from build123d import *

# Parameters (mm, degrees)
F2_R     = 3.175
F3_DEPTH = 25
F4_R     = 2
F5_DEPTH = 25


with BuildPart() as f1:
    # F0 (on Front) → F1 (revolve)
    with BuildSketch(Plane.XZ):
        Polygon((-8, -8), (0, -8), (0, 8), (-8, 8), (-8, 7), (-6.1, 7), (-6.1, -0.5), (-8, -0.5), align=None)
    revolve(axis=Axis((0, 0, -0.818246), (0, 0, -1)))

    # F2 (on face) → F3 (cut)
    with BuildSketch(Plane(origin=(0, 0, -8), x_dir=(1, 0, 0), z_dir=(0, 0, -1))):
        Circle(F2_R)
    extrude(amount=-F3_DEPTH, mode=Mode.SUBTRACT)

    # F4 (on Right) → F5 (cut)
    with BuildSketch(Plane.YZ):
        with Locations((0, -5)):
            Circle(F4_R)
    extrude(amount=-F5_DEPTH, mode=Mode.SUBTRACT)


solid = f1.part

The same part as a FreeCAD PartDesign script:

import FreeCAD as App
import Part
import Sketcher

V = App.Vector
Q = App.Units.Quantity

doc = App.newDocument("Part")
params = doc.addObject("Spreadsheet::Sheet", "Params")
for row, (alias, value) in enumerate([
    ("sketch1_width", "8 mm"),
    ("sketch1_height", "16 mm"),
    ("sketch1_height2", "1 mm"),
    ("sketch1_width2", "1.9 mm"),
    ("revolution_angle", "360 deg"),
    ("sketch2_diameter", "6.35 mm"),
    ("pocket1_length", "25 mm"),
    ("sketch3_diameter", "4 mm"),
    ("pocket2_length", "25 mm"),
], start=1):
    params.set(f"A{row}", alias)
    params.set(f"B{row}", "=" + value)
    params.setAlias(f"B{row}", alias)

body = doc.addObject("PartDesign::Body", "Body")

# Sketch on XZ plane
sketch1 = doc.addObject("Sketcher::SketchObject", "Sketch")
body.addObject(sketch1)
sketch1.AttachmentSupport = (doc.XZ_Plane, [""])
sketch1.MapMode = "FlatFace"
sketch1.addGeometry(Part.LineSegment(V(-8, -8, 0), V(0, -8, 0)), False)
sketch1.addGeometry(Part.LineSegment(V(0, -8, 0), V(0, 8, 0)), False)
sketch1.addGeometry(Part.LineSegment(V(0, 8, 0), V(-8, 8, 0)), False)
sketch1.addGeometry(Part.LineSegment(V(-8, 8, 0), V(-8, 7, 0)), False)
sketch1.addGeometry(Part.LineSegment(V(-8, 7, 0), V(-6.1, 7, 0)), False)
sketch1.addGeometry(Part.LineSegment(V(-6.1, 7, 0), V(-6.1, -0.5, 0)), False)
sketch1.addGeometry(Part.LineSegment(V(-6.1, -0.5, 0), V(-8, -0.5, 0)), False)
sketch1.addGeometry(Part.LineSegment(V(-8, -0.5, 0), V(-8, -8, 0)), False)
sketch1.addConstraint(Sketcher.Constraint("Coincident", 0, 2, 1, 1))
sketch1.addConstraint(Sketcher.Constraint("Coincident", 1, 2, 2, 1))
sketch1.addConstraint(Sketcher.Constraint("Coincident", 2, 2, 3, 1))
sketch1.addConstraint(Sketcher.Constraint("Coincident", 3, 2, 4, 1))
sketch1.addConstraint(Sketcher.Constraint("Coincident", 4, 2, 5, 1))
sketch1.addConstraint(Sketcher.Constraint("Coincident", 5, 2, 6, 1))
sketch1.addConstraint(Sketcher.Constraint("Coincident", 6, 2, 7, 1))
sketch1.addConstraint(Sketcher.Constraint("Coincident", 7, 2, 0, 1))
sketch1.addConstraint(Sketcher.Constraint("Horizontal", 0))
sketch1.addConstraint(Sketcher.Constraint("Vertical", 1))
sketch1.addConstraint(Sketcher.Constraint("Horizontal", 2))
sketch1.addConstraint(Sketcher.Constraint("Vertical", 3))
sketch1.addConstraint(Sketcher.Constraint("Horizontal", 4))
sketch1.addConstraint(Sketcher.Constraint("Vertical", 5))
sketch1.addConstraint(Sketcher.Constraint("Horizontal", 6))
sketch1.addConstraint(Sketcher.Constraint("Vertical", 7))
sketch1.addConstraint(Sketcher.Constraint("Symmetric", 0, 2, 1, 2, -1, 1))
sketch1.addConstraint(Sketcher.Constraint("Vertical", 3, 2, 6, 2))
sketch1.addConstraint(Sketcher.Constraint("Equal", 5, 7))
sketch1.addConstraint(Sketcher.Constraint("DistanceX", 0, 1, 0, 2, Q("8 mm")))
sketch1.addConstraint(Sketcher.Constraint("DistanceY", 1, 1, 1, 2, Q("16 mm")))
sketch1.addConstraint(Sketcher.Constraint("DistanceY", 3, 2, 3, 1, Q("1 mm")))
sketch1.addConstraint(Sketcher.Constraint("DistanceX", 4, 1, 4, 2, Q("1.9 mm")))
sketch1.setExpression("Constraints[19]", "Params.sketch1_width")
sketch1.setExpression("Constraints[20]", "Params.sketch1_height")
sketch1.setExpression("Constraints[21]", "Params.sketch1_height2")
sketch1.setExpression("Constraints[22]", "Params.sketch1_width2")
revolution = doc.addObject("PartDesign::Revolution", "Revolution")
body.addObject(revolution)
revolution.Profile = sketch1
revolution.ReferenceAxis = (sketch1, ["V_Axis"])
revolution.setExpression("Angle", "Params.revolution_angle")

# Sketch on XY plane
sketch2 = doc.addObject("Sketcher::SketchObject", "Sketch001")
body.addObject(sketch2)
sketch2.AttachmentSupport = (doc.XY_Plane, [""])
sketch2.MapMode = "FlatFace"
sketch2.AttachmentOffset = App.Placement(V(0, 0, -8), App.Rotation())
sketch2.addGeometry(Part.Circle(V(0, 0, 0), V(0, 0, 1), 3.2), False)
sketch2.addConstraint(Sketcher.Constraint("Coincident", 0, 3, -1, 1))
sketch2.addConstraint(Sketcher.Constraint("Diameter", 0, Q("6.35 mm")))
sketch2.setExpression("Constraints[1]", "Params.sketch2_diameter")
pocket1 = doc.addObject("PartDesign::Pocket", "Pocket")
body.addObject(pocket1)
pocket1.Profile = sketch2
pocket1.setExpression("Length", "Params.pocket1_length")
pocket1.Reversed = True

# Sketch on YZ plane
sketch3 = doc.addObject("Sketcher::SketchObject", "Sketch002")
body.addObject(sketch3)
sketch3.AttachmentSupport = (doc.YZ_Plane, [""])
sketch3.MapMode = "FlatFace"
sketch3.addGeometry(Part.Circle(V(0, -5, 0), V(0, 0, 1), 2), False)
sketch3.addConstraint(Sketcher.Constraint("PointOnObject", 0, 3, -2))
sketch3.addConstraint(Sketcher.Constraint("Diameter", 0, Q("4 mm")))
sketch3.addConstraint(Sketcher.Constraint("DistanceY", 0, 3, -1, 1, Q("5 mm")))
sketch3.setExpression("Constraints[1]", "Params.sketch3_diameter")
pocket2 = doc.addObject("PartDesign::Pocket", "Pocket001")
body.addObject(pocket2)
pocket2.Profile = sketch3
pocket2.setExpression("Length", "Params.pocket2_length")

doc.recompute()
